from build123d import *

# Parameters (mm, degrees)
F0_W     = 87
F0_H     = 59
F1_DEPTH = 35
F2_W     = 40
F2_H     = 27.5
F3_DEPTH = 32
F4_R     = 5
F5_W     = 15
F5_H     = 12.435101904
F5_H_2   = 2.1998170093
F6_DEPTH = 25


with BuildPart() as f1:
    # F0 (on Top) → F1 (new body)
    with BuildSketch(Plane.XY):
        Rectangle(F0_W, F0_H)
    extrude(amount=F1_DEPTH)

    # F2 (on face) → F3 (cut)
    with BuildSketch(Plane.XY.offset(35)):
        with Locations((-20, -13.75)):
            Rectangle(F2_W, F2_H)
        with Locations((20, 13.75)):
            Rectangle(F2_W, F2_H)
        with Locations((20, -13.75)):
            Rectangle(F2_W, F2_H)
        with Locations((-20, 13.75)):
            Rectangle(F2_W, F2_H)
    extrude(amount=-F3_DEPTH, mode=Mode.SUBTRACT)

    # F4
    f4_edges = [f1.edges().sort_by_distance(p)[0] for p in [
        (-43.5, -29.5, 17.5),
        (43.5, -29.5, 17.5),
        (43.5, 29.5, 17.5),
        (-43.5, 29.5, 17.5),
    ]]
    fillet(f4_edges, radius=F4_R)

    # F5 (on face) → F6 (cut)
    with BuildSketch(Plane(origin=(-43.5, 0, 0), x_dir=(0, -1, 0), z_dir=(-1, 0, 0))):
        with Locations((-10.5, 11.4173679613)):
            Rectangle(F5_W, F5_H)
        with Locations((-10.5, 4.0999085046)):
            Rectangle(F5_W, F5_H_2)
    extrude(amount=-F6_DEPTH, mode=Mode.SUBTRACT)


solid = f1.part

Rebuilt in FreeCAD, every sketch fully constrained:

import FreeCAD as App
import Part
import Sketcher


def edges_at(feature, points):
    """Names of the edges that pass closest to the given points."""
    edges = feature.Shape.Edges
    near = lambda p: min(range(len(edges)), key=lambda i: edges[i].distToShape(Part.Vertex(*p))[0])
    return sorted({f"Edge{near(p) + 1}" for p in points})

doc = App.newDocument("Part")
body = doc.addObject("PartDesign::Body", "Body")

# Sketch on XY plane
sketch1 = body.newObject("Sketcher::SketchObject", "Sketch")
sketch1.AttachmentSupport = (doc.getObject("XY_Plane"), [""])
sketch1.MapMode = "FlatFace"
sketch1.addGeometry([
    Part.LineSegment(App.Vector(-44, 30, 0), App.Vector(-44, -30, 0)),
    Part.LineSegment(App.Vector(-44, -30, 0), App.Vector(44, -30, 0)),
    Part.LineSegment(App.Vector(44, -30, 0), App.Vector(44, 30, 0)),
    Part.LineSegment(App.Vector(44, 30, 0), App.Vector(-44, 30, 0)),
], False)
sketch1.addConstraint([
    Sketcher.Constraint("Coincident", 0, 2, 1, 1),
    Sketcher.Constraint("Coincident", 1, 2, 2, 1),
    Sketcher.Constraint("Coincident", 2, 2, 3, 1),
    Sketcher.Constraint("Coincident", 3, 2, 0, 1),
    Sketcher.Constraint("Vertical", 0),
    Sketcher.Constraint("Horizontal", 1),
    Sketcher.Constraint("Vertical", 2),
    Sketcher.Constraint("Horizontal", 3),
    Sketcher.Constraint("Symmetric", 0, 2, 2, 2, -1, 1),
    Sketcher.Constraint("DistanceX", 1, 1, 1, 2, 87.0),
    Sketcher.Constraint("DistanceY", 0, 2, 0, 1, 59.0),
])
pad1 = body.newObject("PartDesign::Pad", "Pad")
pad1.Profile = sketch1
pad1.Length = 35

# Sketch on XY plane
sketch2 = body.newObject("Sketcher::SketchObject", "Sketch001")
sketch2.AttachmentSupport = (doc.getObject("XY_Plane"), [""])
sketch2.MapMode = "FlatFace"
sketch2.AttachmentOffset = App.Placement(App.Vector(0, 0, 35), App.Rotation())
sketch2.addGeometry([
    Part.LineSegment(App.Vector(-40, -28, 0), App.Vector(40, -28, 0)),
    Part.LineSegment(App.Vector(40, -28, 0), App.Vector(40, 28, 0)),
    Part.LineSegment(App.Vector(40, 28, 0), App.Vector(-40, 28, 0)),
    Part.LineSegment(App.Vector(-40, 28, 0), App.Vector(-40, -28, 0)),
], False)
sketch2.addConstraint([
    Sketcher.Constraint("Coincident", 0, 2, 1, 1),
    Sketcher.Constraint("Coincident", 1, 2, 2, 1),
    Sketcher.Constraint("Coincident", 2, 2, 3, 1),
    Sketcher.Constraint("Coincident", 3, 2, 0, 1),
    Sketcher.Constraint("Horizontal", 0),
    Sketcher.Constraint("Vertical", 1),
    Sketcher.Constraint("Horizontal", 2),
    Sketcher.Constraint("Vertical", 3),
    Sketcher.Constraint("Symmetric", 0, 2, 2, 2, -1, 1),
    Sketcher.Constraint("DistanceX", 0, 1, 0, 2, 80.0),
    Sketcher.Constraint("DistanceY", 1, 1, 1, 2, 55.0),
])
pocket1 = body.newObject("PartDesign::Pocket", "Pocket")
pocket1.Profile = sketch2
pocket1.Length = 32
doc.recompute()

fillet = body.newObject("PartDesign::Fillet", "Fillet")
fillet.Base = (pocket1, edges_at(pocket1, [
    (-43.5, -29.5, 17.5),
    (43.5, -29.5, 17.5),
    (43.5, 29.5, 17.5),
    (-43.5, 29.5, 17.5),
]))
fillet.Radius = 5

# Sketch on YZ plane
sketch3 = body.newObject("Sketcher::SketchObject", "Sketch002")
sketch3.AttachmentSupport = (doc.getObject("YZ_Plane"), [""])
sketch3.MapMode = "FlatFace"
sketch3.AttachmentOffset = App.Placement(App.Vector(0, 0, -43.5), App.Rotation())
sketch3.addGeometry([
    Part.LineSegment(App.Vector(18, 18, 0), App.Vector(18, 3, 0)),
    Part.LineSegment(App.Vector(18, 3, 0), App.Vector(3, 3, 0)),
    Part.LineSegment(App.Vector(3, 3, 0), App.Vector(3, 18, 0)),
    Part.LineSegment(App.Vector(3, 18, 0), App.Vector(18, 18, 0)),
], False)
sketch3.addConstraint([
    Sketcher.Constraint("Coincident", 0, 2, 1, 1),
    Sketcher.Constraint("Coincident", 1, 2, 2, 1),
    Sketcher.Constraint("Coincident", 2, 2, 3, 1),
    Sketcher.Constraint("Coincident", 3, 2, 0, 1),
    Sketcher.Constraint("Vertical", 0),
    Sketcher.Constraint("Horizontal", 1),
    Sketcher.Constraint("Vertical", 2),
    Sketcher.Constraint("Horizontal", 3),
    Sketcher.Constraint("DistanceX", 1, 2, 1, 1, 15.0),
    Sketcher.Constraint("DistanceX", -1, 1, 0, 2, 18.0),
    Sketcher.Constraint("DistanceY", -1, 1, 0, 2, 3.0),
    Sketcher.Constraint("DistanceY", 0, 2, 0, 1, 14.634919),
])
pocket2 = body.newObject("PartDesign::Pocket", "Pocket001")
pocket2.Profile = sketch3
pocket2.Length = 25
pocket2.Reversed = True

doc.recompute()
